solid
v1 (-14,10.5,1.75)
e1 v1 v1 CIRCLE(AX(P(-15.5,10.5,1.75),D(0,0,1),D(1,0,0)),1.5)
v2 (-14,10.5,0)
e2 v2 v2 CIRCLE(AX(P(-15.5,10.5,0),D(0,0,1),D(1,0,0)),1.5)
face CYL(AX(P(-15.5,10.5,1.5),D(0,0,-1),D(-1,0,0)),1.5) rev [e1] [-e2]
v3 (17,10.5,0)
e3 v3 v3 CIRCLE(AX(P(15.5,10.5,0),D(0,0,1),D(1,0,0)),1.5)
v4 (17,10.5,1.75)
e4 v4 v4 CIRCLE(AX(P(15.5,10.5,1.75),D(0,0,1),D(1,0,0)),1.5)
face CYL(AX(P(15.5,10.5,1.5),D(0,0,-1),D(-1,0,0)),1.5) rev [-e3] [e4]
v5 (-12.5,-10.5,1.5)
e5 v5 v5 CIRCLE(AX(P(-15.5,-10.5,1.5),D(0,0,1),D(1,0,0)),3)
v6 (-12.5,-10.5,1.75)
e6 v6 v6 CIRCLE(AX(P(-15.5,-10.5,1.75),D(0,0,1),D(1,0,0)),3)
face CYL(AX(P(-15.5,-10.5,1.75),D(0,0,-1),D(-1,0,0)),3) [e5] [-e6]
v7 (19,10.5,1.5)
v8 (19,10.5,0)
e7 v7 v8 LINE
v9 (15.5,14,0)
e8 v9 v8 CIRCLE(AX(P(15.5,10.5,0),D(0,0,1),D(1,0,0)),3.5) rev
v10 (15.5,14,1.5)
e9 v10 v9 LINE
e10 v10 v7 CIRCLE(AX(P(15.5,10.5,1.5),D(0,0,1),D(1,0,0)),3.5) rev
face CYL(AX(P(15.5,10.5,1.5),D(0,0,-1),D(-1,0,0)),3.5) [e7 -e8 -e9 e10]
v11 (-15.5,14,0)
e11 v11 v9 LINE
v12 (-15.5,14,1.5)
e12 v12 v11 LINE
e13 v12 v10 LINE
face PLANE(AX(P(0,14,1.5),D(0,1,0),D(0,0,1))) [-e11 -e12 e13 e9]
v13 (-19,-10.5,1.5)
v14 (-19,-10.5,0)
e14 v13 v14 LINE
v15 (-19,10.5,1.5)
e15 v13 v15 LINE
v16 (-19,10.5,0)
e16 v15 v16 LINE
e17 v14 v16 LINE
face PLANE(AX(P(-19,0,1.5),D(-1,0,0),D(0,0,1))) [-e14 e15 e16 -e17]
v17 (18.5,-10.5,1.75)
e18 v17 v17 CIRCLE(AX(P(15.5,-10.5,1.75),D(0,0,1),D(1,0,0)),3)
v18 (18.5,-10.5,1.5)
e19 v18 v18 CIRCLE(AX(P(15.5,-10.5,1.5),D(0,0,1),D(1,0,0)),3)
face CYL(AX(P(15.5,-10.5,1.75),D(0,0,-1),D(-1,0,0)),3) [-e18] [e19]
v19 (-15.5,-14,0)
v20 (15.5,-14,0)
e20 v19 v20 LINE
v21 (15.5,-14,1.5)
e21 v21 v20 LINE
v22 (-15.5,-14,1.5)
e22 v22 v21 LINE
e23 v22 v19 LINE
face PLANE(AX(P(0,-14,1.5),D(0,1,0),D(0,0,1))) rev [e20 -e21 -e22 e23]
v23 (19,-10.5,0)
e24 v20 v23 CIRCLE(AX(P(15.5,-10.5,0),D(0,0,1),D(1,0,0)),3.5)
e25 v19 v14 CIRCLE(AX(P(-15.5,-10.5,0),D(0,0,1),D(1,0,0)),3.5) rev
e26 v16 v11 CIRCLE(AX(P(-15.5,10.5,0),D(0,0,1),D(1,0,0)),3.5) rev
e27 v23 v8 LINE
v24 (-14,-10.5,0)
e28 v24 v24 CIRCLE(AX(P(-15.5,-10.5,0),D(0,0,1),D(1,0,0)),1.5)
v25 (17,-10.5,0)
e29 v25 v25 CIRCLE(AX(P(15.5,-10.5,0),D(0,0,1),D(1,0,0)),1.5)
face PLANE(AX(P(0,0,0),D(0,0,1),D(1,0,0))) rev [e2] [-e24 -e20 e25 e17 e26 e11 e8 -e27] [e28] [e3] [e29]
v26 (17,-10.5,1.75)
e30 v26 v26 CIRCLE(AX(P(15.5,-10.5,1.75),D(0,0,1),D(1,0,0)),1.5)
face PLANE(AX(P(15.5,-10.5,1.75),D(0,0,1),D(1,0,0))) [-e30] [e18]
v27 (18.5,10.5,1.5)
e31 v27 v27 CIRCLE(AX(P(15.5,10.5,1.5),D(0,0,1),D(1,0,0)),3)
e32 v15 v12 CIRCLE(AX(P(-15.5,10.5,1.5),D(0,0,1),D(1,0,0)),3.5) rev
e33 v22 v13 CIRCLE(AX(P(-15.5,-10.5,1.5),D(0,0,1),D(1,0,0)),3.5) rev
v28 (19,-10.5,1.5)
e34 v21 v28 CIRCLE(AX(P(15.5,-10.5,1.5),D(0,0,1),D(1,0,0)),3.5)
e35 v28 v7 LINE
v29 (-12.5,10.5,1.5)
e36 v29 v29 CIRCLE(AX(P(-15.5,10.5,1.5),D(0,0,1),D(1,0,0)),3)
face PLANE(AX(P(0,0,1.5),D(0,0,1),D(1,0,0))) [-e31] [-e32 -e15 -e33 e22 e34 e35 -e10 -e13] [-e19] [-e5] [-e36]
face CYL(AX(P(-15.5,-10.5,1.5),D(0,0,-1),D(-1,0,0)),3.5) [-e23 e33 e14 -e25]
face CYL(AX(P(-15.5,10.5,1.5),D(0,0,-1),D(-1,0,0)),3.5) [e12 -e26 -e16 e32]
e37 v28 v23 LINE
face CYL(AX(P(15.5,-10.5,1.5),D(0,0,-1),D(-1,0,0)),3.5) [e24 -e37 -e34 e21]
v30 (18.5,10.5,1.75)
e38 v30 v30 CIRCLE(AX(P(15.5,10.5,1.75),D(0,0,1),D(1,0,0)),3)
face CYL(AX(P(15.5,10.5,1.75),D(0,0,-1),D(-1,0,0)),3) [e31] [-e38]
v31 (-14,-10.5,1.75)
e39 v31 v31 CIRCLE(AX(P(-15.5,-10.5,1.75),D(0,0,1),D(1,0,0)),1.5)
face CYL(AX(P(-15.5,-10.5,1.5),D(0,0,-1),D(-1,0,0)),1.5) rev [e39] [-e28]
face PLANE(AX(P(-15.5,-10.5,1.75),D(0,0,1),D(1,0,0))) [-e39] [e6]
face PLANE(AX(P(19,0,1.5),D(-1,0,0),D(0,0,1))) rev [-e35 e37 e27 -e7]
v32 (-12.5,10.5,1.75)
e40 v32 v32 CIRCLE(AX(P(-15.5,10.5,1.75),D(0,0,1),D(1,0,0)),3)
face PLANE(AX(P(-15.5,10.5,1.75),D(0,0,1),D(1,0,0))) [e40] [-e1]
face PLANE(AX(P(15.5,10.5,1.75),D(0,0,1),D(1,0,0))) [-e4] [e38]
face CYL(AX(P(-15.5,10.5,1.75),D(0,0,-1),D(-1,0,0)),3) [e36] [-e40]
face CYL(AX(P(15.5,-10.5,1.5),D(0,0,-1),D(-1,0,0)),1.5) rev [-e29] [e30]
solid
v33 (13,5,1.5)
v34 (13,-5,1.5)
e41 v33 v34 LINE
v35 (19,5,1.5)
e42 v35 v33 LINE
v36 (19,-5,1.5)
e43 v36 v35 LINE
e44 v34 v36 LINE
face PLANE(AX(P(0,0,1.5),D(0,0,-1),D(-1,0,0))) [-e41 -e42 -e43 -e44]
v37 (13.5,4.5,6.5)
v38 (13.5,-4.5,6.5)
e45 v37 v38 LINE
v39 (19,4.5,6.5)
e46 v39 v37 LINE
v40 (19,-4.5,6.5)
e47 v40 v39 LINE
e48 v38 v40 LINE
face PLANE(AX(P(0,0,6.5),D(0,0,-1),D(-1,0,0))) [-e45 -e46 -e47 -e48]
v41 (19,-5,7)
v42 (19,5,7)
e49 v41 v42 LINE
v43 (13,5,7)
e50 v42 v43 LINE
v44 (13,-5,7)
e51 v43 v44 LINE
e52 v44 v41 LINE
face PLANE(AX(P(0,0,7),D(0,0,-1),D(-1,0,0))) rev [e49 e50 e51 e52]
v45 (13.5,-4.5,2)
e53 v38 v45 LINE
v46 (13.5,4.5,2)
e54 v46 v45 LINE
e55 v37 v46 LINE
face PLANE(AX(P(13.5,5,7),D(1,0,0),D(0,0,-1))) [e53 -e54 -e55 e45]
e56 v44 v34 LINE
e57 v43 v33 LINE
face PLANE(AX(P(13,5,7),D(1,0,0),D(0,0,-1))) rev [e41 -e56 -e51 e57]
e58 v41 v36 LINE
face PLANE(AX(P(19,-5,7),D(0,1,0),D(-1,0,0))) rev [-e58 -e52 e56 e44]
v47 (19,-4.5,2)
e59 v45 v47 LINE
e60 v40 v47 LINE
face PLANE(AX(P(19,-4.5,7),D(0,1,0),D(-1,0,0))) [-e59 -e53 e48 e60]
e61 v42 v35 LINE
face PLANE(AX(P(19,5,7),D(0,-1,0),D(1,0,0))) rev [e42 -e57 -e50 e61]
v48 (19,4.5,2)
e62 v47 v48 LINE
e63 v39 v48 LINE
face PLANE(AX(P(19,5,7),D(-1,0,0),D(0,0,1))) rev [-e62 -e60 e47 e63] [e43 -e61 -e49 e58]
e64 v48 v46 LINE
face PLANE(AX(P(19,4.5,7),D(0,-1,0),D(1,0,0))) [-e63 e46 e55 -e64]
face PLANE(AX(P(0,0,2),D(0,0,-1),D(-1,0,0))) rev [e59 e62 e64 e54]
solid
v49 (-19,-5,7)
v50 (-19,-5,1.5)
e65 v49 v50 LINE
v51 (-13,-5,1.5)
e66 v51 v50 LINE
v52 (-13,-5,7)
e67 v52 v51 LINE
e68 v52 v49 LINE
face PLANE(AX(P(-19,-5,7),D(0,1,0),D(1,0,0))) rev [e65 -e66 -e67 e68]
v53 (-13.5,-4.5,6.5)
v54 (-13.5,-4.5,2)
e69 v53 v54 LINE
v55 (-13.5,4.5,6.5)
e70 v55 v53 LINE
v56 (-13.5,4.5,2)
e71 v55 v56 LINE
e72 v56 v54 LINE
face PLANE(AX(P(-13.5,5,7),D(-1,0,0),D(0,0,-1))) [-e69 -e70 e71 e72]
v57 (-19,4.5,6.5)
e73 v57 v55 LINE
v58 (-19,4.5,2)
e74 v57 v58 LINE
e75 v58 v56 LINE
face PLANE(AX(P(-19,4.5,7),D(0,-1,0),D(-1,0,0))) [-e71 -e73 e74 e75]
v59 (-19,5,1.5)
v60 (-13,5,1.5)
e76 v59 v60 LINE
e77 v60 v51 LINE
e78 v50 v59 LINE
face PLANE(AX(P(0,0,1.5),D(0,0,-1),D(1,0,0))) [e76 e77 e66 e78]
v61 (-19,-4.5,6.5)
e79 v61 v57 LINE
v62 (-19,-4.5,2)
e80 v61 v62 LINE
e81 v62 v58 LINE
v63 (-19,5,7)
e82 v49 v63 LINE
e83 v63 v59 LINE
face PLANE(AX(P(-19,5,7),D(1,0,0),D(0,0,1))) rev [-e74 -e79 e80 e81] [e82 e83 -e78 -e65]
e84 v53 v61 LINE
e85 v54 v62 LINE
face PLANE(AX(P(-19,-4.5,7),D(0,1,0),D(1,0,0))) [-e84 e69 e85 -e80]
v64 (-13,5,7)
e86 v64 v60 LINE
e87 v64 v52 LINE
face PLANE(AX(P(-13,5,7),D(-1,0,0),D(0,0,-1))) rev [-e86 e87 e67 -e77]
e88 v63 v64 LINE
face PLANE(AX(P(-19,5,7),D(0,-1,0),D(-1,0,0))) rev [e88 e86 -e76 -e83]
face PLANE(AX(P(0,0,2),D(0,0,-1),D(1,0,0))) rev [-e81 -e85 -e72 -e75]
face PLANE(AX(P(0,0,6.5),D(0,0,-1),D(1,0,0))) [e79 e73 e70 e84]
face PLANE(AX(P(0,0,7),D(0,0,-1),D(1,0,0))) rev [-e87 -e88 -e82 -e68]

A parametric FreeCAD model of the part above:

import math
import FreeCAD as App
import Part
import Sketcher
from FreeCAD import Vector
Q = App.Units.Quantity


def faces_at(feature, points):
    """Names of the faces that lie closest to the given points."""
    faces = feature.Shape.Faces
    near = lambda p: min(range(len(faces)), key=lambda i: faces[i].distToShape(Part.Vertex(*p))[0])
    return sorted({f"Face{near(p) + 1}" for p in points})


def add_polygon(sketch, points):
    """Adds a closed chain of lines whose ends are joined by coincident constraints."""
    first, n = sketch.GeometryCount, len(points)
    for a, b in zip(points, points[1:] + points[:1]):
        sketch.addGeometry(Part.LineSegment(App.Vector(*a, 0), App.Vector(*b, 0)), False)
    for i in range(n):
        sketch.addConstraint(Sketcher.Constraint("Coincident", first + i, 2, first + (i + 1) % n, 1))

doc = App.newDocument("Part")
body = doc.addObject("PartDesign::Body", "Body")

# Sketch on XY plane
sketch1 = doc.addObject("Sketcher::SketchObject", "Sketch")
body.addObject(sketch1)
sketch1.AttachmentSupport = (doc.XY_Plane, [""])
sketch1.MapMode = "FlatFace"
sketch1.addGeometry([
    Part.ArcOfCircle(Part.Circle(Vector(-15.5, 10.5, 0), Vector(0, 0, 1), 3.5), math.radians(90), math.radians(180)),  # 0
    Part.LineSegment(Vector(-19, 10.5, 0), Vector(-19, -10.5, 0)),  # 1
    Part.ArcOfCircle(Part.Circle(Vector(-15.5, -10.5, 0), Vector(0, 0, 1), 3.5), math.radians(-180), math.radians(-90)),  # 2
    Part.LineSegment(Vector(-15.5, -14, 0), Vector(15.5, -14, 0)),  # 3
    Part.ArcOfCircle(Part.Circle(Vector(15.5, -10.5, 0), Vector(0, 0, 1), 3.5), math.radians(-90), math.radians(0)),  # 4
    Part.LineSegment(Vector(19, -10.5, 0), Vector(19, 10.5, 0)),  # 5
    Part.ArcOfCircle(Part.Circle(Vector(15.5, 10.5, 0), Vector(0, 0, 1), 3.5), math.radians(0), math.radians(90)),  # 6
    Part.LineSegment(Vector(15.5, 14, 0), Vector(-15.5, 14, 0)),  # 7
    Part.Circle(Vector(15.5, -10.5, 0), Vector(0, 0, 1), 1.5),  # 8
    Part.Circle(Vector(-15.5, -10.5, 0), Vector(0, 0, 1), 1.5),  # 9
    Part.Circle(Vector(15.5, 10.5, 0), Vector(0, 0, 1), 1.5),  # 10
    Part.Circle(Vector(-15.5, 10.5, 0), Vector(0, 0, 1), 1.5),  # 11
], False)
sketch1.addConstraint([
    Sketcher.Constraint("Tangent", 0, 2, 1, 1),
    Sketcher.Constraint("Tangent", 1, 2, 2, 1),
    Sketcher.Constraint("Tangent", 2, 2, 3, 1),
    Sketcher.Constraint("Tangent", 3, 2, 4, 1),
    Sketcher.Constraint("Tangent", 4, 2, 5, 1),
    Sketcher.Constraint("Tangent", 5, 2, 6, 1),
    Sketcher.Constraint("Tangent", 6, 2, 7, 1),
    Sketcher.Constraint("Tangent", 7, 2, 0, 1),
    Sketcher.Constraint("Vertical", 1),
    Sketcher.Constraint("Horizontal", 3),
    Sketcher.Constraint("Vertical", 5),
    Sketcher.Constraint("Horizontal", 7),
    Sketcher.Constraint("Coincident", 8, 3, 4, 3),
    Sketcher.Constraint("Coincident", 9, 3, 2, 3),
    Sketcher.Constraint("Coincident", 10, 3, 6, 3),
    Sketcher.Constraint("Coincident", 11, 3, 0, 3),
    Sketcher.Constraint("Equal", 0, 2),
    Sketcher.Constraint("Equal", 2, 4),
    Sketcher.Constraint("Equal", 4, 6),
    Sketcher.Constraint("Equal", 8, 9),
    Sketcher.Constraint("Equal", 9, 10),
    Sketcher.Constraint("Equal", 10, 11),
    Sketcher.Constraint("Symmetric", 0, 3, 4, 3, -1, 1),
    Sketcher.Constraint("Diameter", 8, Q("3 mm")),
    Sketcher.Constraint("Radius", 0, Q("3.5 mm")),
    Sketcher.Constraint("DistanceX", 3, 1, 3, 2, Q("31 mm")),
    Sketcher.Constraint("DistanceY", 1, 2, 1, 1, Q("21 mm")),
])
pad1 = doc.addObject("PartDesign::Pad", "Pad")
body.addObject(pad1)
pad1.Profile = sketch1
pad1.Length = 1.5

# Sketch on XY plane
sketch2 = doc.addObject("Sketcher::SketchObject", "Sketch001")
body.addObject(sketch2)
sketch2.AttachmentSupport = (doc.XY_Plane, [""])
sketch2.MapMode = "FlatFace"
sketch2.AttachmentOffset = App.Placement(Vector(0, 0, 1.5), App.Rotation())
sketch2.addGeometry([
    Part.Circle(Vector(15.5, 10.5, 0), Vector(0, 0, 1), 3),  # 0
    Part.Circle(Vector(15.5, 10.5, 0), Vector(0, 0, 1), 1.5),  # 1
    Part.Circle(Vector(-15.5, 10.5, 0), Vector(0, 0, 1), 3),  # 2
    Part.Circle(Vector(-15.5, 10.5, 0), Vector(0, 0, 1), 1.5),  # 3
    Part.Circle(Vector(-15.5, -10.5, 0), Vector(0, 0, 1), 3),  # 4
    Part.Circle(Vector(-15.5, -10.5, 0), Vector(0, 0, 1), 1.5),  # 5
    Part.Circle(Vector(15.5, -10.5, 0), Vector(0, 0, 1), 3),  # 6
    Part.Circle(Vector(15.5, -10.5, 0), Vector(0, 0, 1), 1.5),  # 7
], False)
sketch2.addConstraint([
    Sketcher.Constraint("Coincident", 1, 3, 0, 3),
    Sketcher.Constraint("Coincident", 3, 3, 2, 3),
    Sketcher.Constraint("Coincident", 5, 3, 4, 3),
    Sketcher.Constraint("Coincident", 7, 3, 6, 3),
    Sketcher.Constraint("Equal", 0, 2),
    Sketcher.Constraint("Equal", 1, 3),
    Sketcher.Constraint("Equal", 2, 4),
    Sketcher.Constraint("Equal", 3, 5),
    Sketcher.Constraint("Equal", 4, 6),
    Sketcher.Constraint("Equal", 5, 7),
    Sketcher.Constraint("Symmetric", 0, 3, 4, 3, -1, 1),
    Sketcher.Constraint("Symmetric", 2, 3, 6, 3, -1, 1),
    Sketcher.Constraint("Symmetric", 0, 3, 2, 3, -2),
    Sketcher.Constraint("Diameter", 0, Q("6 mm")),
    Sketcher.Constraint("Diameter", 1, Q("3 mm")),
    Sketcher.Constraint("DistanceX", 2, 3, 0, 3, Q("31 mm")),
    Sketcher.Constraint("DistanceY", 4, 3, 2, 3, Q("21 mm")),
])
pad2 = doc.addObject("PartDesign::Pad", "Pad001")
body.addObject(pad2)
pad2.Profile = sketch2
pad2.Length = 0.25
body2 = doc.addObject("PartDesign::Body", "Body001")

# Sketch on XY plane
sketch3 = doc.addObject("Sketcher::SketchObject", "Sketch002")
body2.addObject(sketch3)
sketch3.AttachmentSupport = (doc.getObject("XY_Plane001"), [""])
sketch3.MapMode = "FlatFace"
sketch3.AttachmentOffset = App.Placement(Vector(0, 0, 1.5), App.Rotation())
add_polygon(sketch3, [(13, 5), (13, -5), (19, -5), (19, 5)])  # lines 0-3
sketch3.addConstraint([
    Sketcher.Constraint("Vertical", 0),
    Sketcher.Constraint("Horizontal", 1),
    Sketcher.Constraint("Vertical", 2),
    Sketcher.Constraint("Horizontal", 3),
    Sketcher.Constraint("DistanceX", 1, 1, 1, 2, Q("6 mm")),
    Sketcher.Constraint("DistanceY", 0, 2, 0, 1, Q("10 mm")),
    Sketcher.Constraint("DistanceX", -1, 1, 0, 2, Q("13 mm")),
    Sketcher.Constraint("DistanceY", 0, 2, -1, 1, Q("5 mm")),
])
pad3 = doc.addObject("PartDesign::Pad", "Pad002")
body2.addObject(pad3)
pad3.Profile = sketch3
pad3.Length = 5.5
doc.recompute()

thickness = doc.addObject("PartDesign::Thickness", "Thickness")
body2.addObject(thickness)
thickness.Base = (pad3, faces_at(pad3, [(19, 0, 4.25)]))
thickness.Value = 0.5
thickness.Reversed = True
thickness.Join = "Intersection"
body3 = doc.addObject("PartDesign::Body", "Body002")
doc.recompute()

mirroring = doc.addObject("Part::Mirroring", "Mirroring")
mirroring.Source = body2
mirroring.Base = Vector(0, 0, 0)
mirroring.Normal = Vector(1, 0, 0)
body3.BaseFeature = mirroring
doc.recompute()
mirroring.Visibility = False

doc.recompute()
